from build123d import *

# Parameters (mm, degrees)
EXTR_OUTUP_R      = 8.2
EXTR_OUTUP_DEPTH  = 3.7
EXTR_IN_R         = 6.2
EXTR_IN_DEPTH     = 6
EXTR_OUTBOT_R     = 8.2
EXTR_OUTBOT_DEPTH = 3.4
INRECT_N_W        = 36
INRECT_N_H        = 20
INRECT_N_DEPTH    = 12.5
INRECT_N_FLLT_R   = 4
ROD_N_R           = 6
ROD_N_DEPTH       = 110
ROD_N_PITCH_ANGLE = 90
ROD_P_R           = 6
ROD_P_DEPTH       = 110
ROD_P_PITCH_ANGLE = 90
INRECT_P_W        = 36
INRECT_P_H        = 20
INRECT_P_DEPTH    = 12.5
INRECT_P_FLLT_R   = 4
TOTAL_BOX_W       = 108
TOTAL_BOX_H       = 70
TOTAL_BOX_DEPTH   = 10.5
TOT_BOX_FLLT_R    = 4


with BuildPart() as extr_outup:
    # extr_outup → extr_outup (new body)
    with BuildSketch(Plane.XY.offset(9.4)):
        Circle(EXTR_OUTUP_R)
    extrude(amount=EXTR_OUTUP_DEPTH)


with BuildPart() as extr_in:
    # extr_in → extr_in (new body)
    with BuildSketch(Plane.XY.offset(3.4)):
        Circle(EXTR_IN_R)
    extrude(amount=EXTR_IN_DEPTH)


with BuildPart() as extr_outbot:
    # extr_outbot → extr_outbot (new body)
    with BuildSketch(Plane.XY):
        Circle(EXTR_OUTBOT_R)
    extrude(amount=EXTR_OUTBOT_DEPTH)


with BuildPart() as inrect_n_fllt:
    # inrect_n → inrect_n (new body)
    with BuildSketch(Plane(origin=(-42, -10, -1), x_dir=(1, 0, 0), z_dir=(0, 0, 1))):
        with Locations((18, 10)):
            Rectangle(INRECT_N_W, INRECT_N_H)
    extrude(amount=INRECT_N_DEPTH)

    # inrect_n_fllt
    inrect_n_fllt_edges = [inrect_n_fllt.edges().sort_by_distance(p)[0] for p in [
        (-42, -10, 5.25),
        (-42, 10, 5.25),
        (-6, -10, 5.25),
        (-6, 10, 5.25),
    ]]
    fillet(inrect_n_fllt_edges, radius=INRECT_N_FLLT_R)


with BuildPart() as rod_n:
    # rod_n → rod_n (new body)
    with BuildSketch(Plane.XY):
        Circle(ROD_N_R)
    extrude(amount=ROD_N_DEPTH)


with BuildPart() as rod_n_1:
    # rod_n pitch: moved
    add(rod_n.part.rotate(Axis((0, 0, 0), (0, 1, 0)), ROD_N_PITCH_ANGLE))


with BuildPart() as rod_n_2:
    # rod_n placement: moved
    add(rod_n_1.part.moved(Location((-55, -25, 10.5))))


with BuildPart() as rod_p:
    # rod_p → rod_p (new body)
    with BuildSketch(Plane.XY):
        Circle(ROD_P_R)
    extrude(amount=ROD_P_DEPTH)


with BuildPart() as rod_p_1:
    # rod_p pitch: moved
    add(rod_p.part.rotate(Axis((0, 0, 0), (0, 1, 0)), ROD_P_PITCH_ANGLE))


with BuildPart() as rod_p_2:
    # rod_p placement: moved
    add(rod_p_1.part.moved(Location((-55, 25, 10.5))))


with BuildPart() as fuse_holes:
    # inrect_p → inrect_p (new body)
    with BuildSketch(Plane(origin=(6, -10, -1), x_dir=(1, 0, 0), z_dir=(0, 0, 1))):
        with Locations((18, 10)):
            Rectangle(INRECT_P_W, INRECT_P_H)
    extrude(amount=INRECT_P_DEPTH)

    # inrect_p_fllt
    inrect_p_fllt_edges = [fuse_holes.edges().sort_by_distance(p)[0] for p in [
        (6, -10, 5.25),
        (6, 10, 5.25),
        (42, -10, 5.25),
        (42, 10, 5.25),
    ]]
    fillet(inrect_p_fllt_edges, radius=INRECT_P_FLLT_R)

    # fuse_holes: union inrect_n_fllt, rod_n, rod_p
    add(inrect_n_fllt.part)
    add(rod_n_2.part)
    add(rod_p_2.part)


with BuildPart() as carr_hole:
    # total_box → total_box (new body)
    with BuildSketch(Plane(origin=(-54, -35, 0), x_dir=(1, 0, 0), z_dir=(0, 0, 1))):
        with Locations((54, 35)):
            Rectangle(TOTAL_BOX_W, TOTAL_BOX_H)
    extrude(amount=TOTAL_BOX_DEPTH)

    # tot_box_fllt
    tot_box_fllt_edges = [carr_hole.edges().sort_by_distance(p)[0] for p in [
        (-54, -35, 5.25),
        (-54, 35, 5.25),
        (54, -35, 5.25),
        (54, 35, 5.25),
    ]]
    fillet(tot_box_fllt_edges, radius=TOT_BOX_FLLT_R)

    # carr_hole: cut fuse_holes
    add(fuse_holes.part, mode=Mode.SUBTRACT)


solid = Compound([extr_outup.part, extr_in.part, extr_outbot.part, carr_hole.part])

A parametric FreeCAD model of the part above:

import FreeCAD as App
import Part
import Sketcher


def edges_at(feature, points):
    """Names of the edges that pass closest to the given points."""
    edges = feature.Shape.Edges
    near = lambda p: min(range(len(edges)), key=lambda i: edges[i].distToShape(Part.Vertex(*p))[0])
    return sorted({f"Edge{near(p) + 1}" for p in points})

doc = App.newDocument("Part")
body = doc.addObject("PartDesign::Body", "Body")

sketch1 = body.newObject("Sketcher::SketchObject", "Sketch")
sketch1.AttachmentSupport = (doc.getObject("XY_Plane"), [""])
sketch1.MapMode = "FlatFace"
sketch1.AttachmentOffset = App.Placement(App.Vector(0, 0, 9.4), App.Rotation())
sketch1.addGeometry(Part.Circle(App.Vector(0, 0, 0), App.Vector(0, 0, 1), 8.2), False)
sketch1.addConstraint([
    Sketcher.Constraint("Coincident", 0, 3, -1, 1),
    Sketcher.Constraint("Diameter", 0, 16.4),
])
pad1 = body.newObject("PartDesign::Pad", "Pad")
pad1.Profile = sketch1
pad1.Length = 3.7
body2 = doc.addObject("PartDesign::Body", "Body001")

sketch2 = body2.newObject("Sketcher::SketchObject", "Sketch001")
sketch2.AttachmentSupport = (doc.getObject("XY_Plane001"), [""])
sketch2.MapMode = "FlatFace"
sketch2.AttachmentOffset = App.Placement(App.Vector(0, 0, 3.4), App.Rotation())
sketch2.addGeometry(Part.Circle(App.Vector(0, 0, 0), App.Vector(0, 0, 1), 6.2), False)
sketch2.addConstraint([
    Sketcher.Constraint("Coincident", 0, 3, -1, 1),
    Sketcher.Constraint("Diameter", 0, 12.4),
])
pad2 = body2.newObject("PartDesign::Pad", "Pad001")
pad2.Profile = sketch2
pad2.Length = 6
body3 = doc.addObject("PartDesign::Body", "Body002")

sketch3 = body3.newObject("Sketcher::SketchObject", "Sketch002")
sketch3.AttachmentSupport = (doc.getObject("XY_Plane002"), [""])
sketch3.MapMode = "FlatFace"
sketch3.addGeometry(Part.Circle(App.Vector(0, 0, 0), App.Vector(0, 0, 1), 8.2), False)
sketch3.addConstraint([
    Sketcher.Constraint("Coincident", 0, 3, -1, 1),
    Sketcher.Constraint("Diameter", 0, 16.4),
])
pad3 = body3.newObject("PartDesign::Pad", "Pad002")
pad3.Profile = sketch3
pad3.Length = 3.4
body4 = doc.addObject("PartDesign::Body", "Body003")

sketch4 = body4.newObject("Sketcher::SketchObject", "Sketch003")
sketch4.AttachmentSupport = (doc.getObject("XY_Plane003"), [""])
sketch4.MapMode = "FlatFace"
sketch4.AttachmentOffset = App.Placement(App.Vector(0, 0, -1), App.Rotation())
sketch4.addGeometry([
    Part.LineSegment(App.Vector(-42, 10, 0), App.Vector(-42, -10, 0)),
    Part.LineSegment(App.Vector(-42, -10, 0), App.Vector(-6, -10, 0)),
    Part.LineSegment(App.Vector(-6, -10, 0), App.Vector(-6, 10, 0)),
    Part.LineSegment(App.Vector(-6, 10, 0), App.Vector(-42, 10, 0)),
], False)
sketch4.addConstraint([
    Sketcher.Constraint("Coincident", 0, 2, 1, 1),
    Sketcher.Constraint("Coincident", 1, 2, 2, 1),
    Sketcher.Constraint("Coincident", 2, 2, 3, 1),
    Sketcher.Constraint("Coincident", 3, 2, 0, 1),
    Sketcher.Constraint("Vertical", 0),
    Sketcher.Constraint("Horizontal", 1),
    Sketcher.Constraint("Vertical", 2),
    Sketcher.Constraint("Horizontal", 3),
    Sketcher.Constraint("DistanceX", 1, 1, 1, 2, 36.0),
    Sketcher.Constraint("DistanceY", 0, 2, 0, 1, 20.0),
    Sketcher.Constraint("DistanceX", 0, 2, -1, 1, 42.0),
    Sketcher.Constraint("DistanceY", 0, 2, -1, 1, 10.0),
])
pad4 = body4.newObject("PartDesign::Pad", "Pad003")
pad4.Profile = sketch4
pad4.Length = 12.5
doc.recompute()

fillet = body4.newObject("PartDesign::Fillet", "Fillet")
fillet.Base = (pad4, edges_at(pad4, [
    (-42, -10, 5.25),
    (-42, 10, 5.25),
    (-6, -10, 5.25),
    (-6, 10, 5.25),
]))
fillet.Radius = 4
body5 = doc.addObject("PartDesign::Body", "Body004")

sketch5 = body5.newObject("Sketcher::SketchObject", "Sketch004")
sketch5.AttachmentSupport = (doc.getObject("XY_Plane004"), [""])
sketch5.MapMode = "FlatFace"
sketch5.addGeometry(Part.Circle(App.Vector(0, 0, 0), App.Vector(0, 0, 1), 6), False)
sketch5.addConstraint([
    Sketcher.Constraint("Coincident", 0, 3, -1, 1),
    Sketcher.Constraint("Diameter", 0, 12.0),
])
pad5 = body5.newObject("PartDesign::Pad", "Pad004")
pad5.Profile = sketch5
pad5.Length = 110
body6 = doc.addObject("PartDesign::Body", "Body005")
doc.recompute()

body5.Placement = App.Placement(App.Vector(0, 0, 0), App.Rotation(App.Vector(0, 1, 0), 90))
boolean = body6.newObject("PartDesign::Boolean", "Boolean")
boolean.Type = "Fuse"
boolean.addObjects([body5])
body7 = doc.addObject("PartDesign::Body", "Body006")
doc.recompute()

body6.Placement = App.Placement(App.Vector(-55, -25, 10.5), App.Rotation(App.Vector(0, 0, 1), 0))
boolean2 = body7.newObject("PartDesign::Boolean", "Boolean001")
boolean2.Type = "Fuse"
boolean2.addObjects([body6])
body8 = doc.addObject("PartDesign::Body", "Body007")

sketch6 = body8.newObject("Sketcher::SketchObject", "Sketch005")
sketch6.AttachmentSupport = (doc.getObject("XY_Plane007"), [""])
sketch6.MapMode = "FlatFace"
sketch6.addGeometry(Part.Circle(App.Vector(0, 0, 0), App.Vector(0, 0, 1), 6), False)
sketch6.addConstraint([
    Sketcher.Constraint("Coincident", 0, 3, -1, 1),
    Sketcher.Constraint("Diameter", 0, 12.0),
])
pad6 = body8.newObject("PartDesign::Pad", "Pad005")
pad6.Profile = sketch6
pad6.Length = 110
body9 = doc.addObject("PartDesign::Body", "Body008")
doc.recompute()

body8.Placement = App.Placement(App.Vector(0, 0, 0), App.Rotation(App.Vector(0, 1, 0), 90))
boolean3 = body9.newObject("PartDesign::Boolean", "Boolean002")
boolean3.Type = "Fuse"
boolean3.addObjects([body8])
body10 = doc.addObject("PartDesign::Body", "Body009")
doc.recompute()

body9.Placement = App.Placement(App.Vector(-55, 25, 10.5), App.Rotation(App.Vector(0, 0, 1), 0))
boolean4 = body10.newObject("PartDesign::Boolean", "Boolean003")
boolean4.Type = "Fuse"
boolean4.addObjects([body9])
body11 = doc.addObject("PartDesign::Body", "Body010")
body11.AllowCompound = True

sketch7 = body11.newObject("Sketcher::SketchObject", "Sketch006")
sketch7.AttachmentSupport = (doc.getObject("XY_Plane010"), [""])
sketch7.MapMode = "FlatFace"
sketch7.AttachmentOffset = App.Placement(App.Vector(0, 0, -1), App.Rotation())
sketch7.addGeometry([
    Part.LineSegment(App.Vector(6, 10, 0), App.Vector(6, -10, 0)),
    Part.LineSegment(App.Vector(6, -10, 0), App.Vector(42, -10, 0)),
    Part.LineSegment(App.Vector(42, -10, 0), App.Vector(42, 10, 0)),
    Part.LineSegment(App.Vector(42, 10, 0), App.Vector(6, 10, 0)),
], False)
sketch7.addConstraint([
    Sketcher.Constraint("Coincident", 0, 2, 1, 1),
    Sketcher.Constraint("Coincident", 1, 2, 2, 1),
    Sketcher.Constraint("Coincident", 2, 2, 3, 1),
    Sketcher.Constraint("Coincident", 3, 2, 0, 1),
    Sketcher.Constraint("Vertical", 0),
    Sketcher.Constraint("Horizontal", 1),
    Sketcher.Constraint("Vertical", 2),
    Sketcher.Constraint("Horizontal", 3),
    Sketcher.Constraint("DistanceX", 1, 1, 1, 2, 36.0),
    Sketcher.Constraint("DistanceY", 0, 2, 0, 1, 20.0),
    Sketcher.Constraint("DistanceX", -1, 1, 0, 2, 6.0),
    Sketcher.Constraint("DistanceY", 0, 2, -1, 1, 10.0),
])
pad7 = body11.newObject("PartDesign::Pad", "Pad006")
pad7.Profile = sketch7
pad7.Length = 12.5
doc.recompute()

fillet2 = body11.newObject("PartDesign::Fillet", "Fillet001")
fillet2.Base = (pad7, edges_at(pad7, [
    (6, -10, 5.25),
    (6, 10, 5.25),
    (42, -10, 5.25),
    (42, 10, 5.25),
]))
fillet2.Radius = 4
doc.recompute()

boolean5 = body11.newObject("PartDesign::Boolean", "Boolean004")
boolean5.Type = "Fuse"
boolean5.addObjects([body4])
doc.recompute()

boolean6 = body11.newObject("PartDesign::Boolean", "Boolean005")
boolean6.Type = "Fuse"
boolean6.addObjects([body7])
doc.recompute()

boolean7 = body11.newObject("PartDesign::Boolean", "Boolean006")
boolean7.Type = "Fuse"
boolean7.addObjects([body10])
body12 = doc.addObject("PartDesign::Body", "Body011")

sketch8 = body12.newObject("Sketcher::SketchObject", "Sketch007")
sketch8.AttachmentSupport = (doc.getObject("XY_Plane011"), [""])
sketch8.MapMode = "FlatFace"
sketch8.addGeometry([
    Part.LineSegment(App.Vector(-54, 35, 0), App.Vector(-54, -35, 0)),
    Part.LineSegment(App.Vector(-54, -35, 0), App.Vector(54, -35, 0)),
    Part.LineSegment(App.Vector(54, -35, 0), App.Vector(54, 35, 0)),
    Part.LineSegment(App.Vector(54, 35, 0), App.Vector(-54, 35, 0)),
], False)
sketch8.addConstraint([
    Sketcher.Constraint("Coincident", 0, 2, 1, 1),
    Sketcher.Constraint("Coincident", 1, 2, 2, 1),
    Sketcher.Constraint("Coincident", 2, 2, 3, 1),
    Sketcher.Constraint("Coincident", 3, 2, 0, 1),
    Sketcher.Constraint("Vertical", 0),
    Sketcher.Constraint("Horizontal", 1),
    Sketcher.Constraint("Vertical", 2),
    Sketcher.Constraint("Horizontal", 3),
    Sketcher.Constraint("Symmetric", 0, 2, 2, 2, -1, 1),
    Sketcher.Constraint("DistanceX", 1, 1, 1, 2, 108.0),
    Sketcher.Constraint("DistanceY", 0, 2, 0, 1, 70.0),
])
pad8 = body12.newObject("PartDesign::Pad", "Pad007")
pad8.Profile = sketch8
pad8.Length = 10.5
doc.recompute()

fillet3 = body12.newObject("PartDesign::Fillet", "Fillet002")
fillet3.Base = (pad8, edges_at(pad8, [
    (-54, -35, 5.25),
    (-54, 35, 5.25),
    (54, -35, 5.25),
    (54, 35, 5.25),
]))
fillet3.Radius = 4
doc.recompute()

boolean8 = body12.newObject("PartDesign::Boolean", "Boolean007")
boolean8.Type = "Cut"
boolean8.addObjects([body11])

doc.recompute()
